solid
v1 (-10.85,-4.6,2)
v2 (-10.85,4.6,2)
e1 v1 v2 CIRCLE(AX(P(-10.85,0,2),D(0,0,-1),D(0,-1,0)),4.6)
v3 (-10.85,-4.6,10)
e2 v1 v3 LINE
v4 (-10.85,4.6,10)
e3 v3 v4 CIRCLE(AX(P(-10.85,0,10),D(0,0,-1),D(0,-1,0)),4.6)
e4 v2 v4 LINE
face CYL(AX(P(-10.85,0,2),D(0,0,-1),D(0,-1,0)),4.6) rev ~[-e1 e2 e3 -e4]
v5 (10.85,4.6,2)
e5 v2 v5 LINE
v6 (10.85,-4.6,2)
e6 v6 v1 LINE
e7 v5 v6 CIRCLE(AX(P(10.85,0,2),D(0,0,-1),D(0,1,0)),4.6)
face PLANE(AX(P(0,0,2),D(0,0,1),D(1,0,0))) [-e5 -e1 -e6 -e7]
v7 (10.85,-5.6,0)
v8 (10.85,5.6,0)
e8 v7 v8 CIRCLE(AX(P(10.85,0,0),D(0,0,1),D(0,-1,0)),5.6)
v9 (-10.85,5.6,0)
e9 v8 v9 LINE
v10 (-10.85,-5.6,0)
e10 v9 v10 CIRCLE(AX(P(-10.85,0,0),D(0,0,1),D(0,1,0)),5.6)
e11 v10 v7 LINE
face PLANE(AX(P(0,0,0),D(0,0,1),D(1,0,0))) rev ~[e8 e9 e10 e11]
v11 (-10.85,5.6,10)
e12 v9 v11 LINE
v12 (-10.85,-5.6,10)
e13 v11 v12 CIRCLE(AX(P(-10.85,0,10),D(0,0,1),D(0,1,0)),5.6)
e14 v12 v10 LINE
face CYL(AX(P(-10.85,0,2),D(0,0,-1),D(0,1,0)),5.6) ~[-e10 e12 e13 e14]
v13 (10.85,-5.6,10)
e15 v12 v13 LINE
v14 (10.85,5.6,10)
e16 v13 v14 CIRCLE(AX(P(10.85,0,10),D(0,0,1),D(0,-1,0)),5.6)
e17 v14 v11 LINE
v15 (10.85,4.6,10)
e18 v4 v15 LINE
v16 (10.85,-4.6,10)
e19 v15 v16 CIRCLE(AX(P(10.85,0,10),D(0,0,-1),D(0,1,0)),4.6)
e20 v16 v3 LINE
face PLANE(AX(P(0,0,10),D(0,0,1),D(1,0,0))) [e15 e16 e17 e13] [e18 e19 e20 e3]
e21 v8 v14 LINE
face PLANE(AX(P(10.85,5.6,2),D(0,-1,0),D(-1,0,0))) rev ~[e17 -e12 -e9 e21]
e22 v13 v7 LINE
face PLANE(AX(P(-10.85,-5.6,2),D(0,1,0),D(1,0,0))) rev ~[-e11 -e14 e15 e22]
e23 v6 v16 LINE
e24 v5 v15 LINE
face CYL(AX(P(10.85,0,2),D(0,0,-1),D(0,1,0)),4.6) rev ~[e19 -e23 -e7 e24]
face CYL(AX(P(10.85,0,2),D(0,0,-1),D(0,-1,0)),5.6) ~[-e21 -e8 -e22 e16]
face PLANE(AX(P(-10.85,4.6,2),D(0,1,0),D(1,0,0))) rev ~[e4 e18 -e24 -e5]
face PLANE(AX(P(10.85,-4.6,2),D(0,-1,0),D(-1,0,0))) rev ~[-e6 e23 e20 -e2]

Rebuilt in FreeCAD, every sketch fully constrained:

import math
import FreeCAD as App
import Part
import Sketcher
from FreeCAD import Vector
Q = App.Units.Quantity

doc = App.newDocument("Part")
body = doc.addObject("PartDesign::Body", "Body")

# Sketch on XY plane
sketch1 = body.newObject("Sketcher::SketchObject", "Sketch")
sketch1.AttachmentSupport = (doc.getObject("XY_Plane"), [""])
sketch1.MapMode = "FlatFace"
sketch1.addGeometry([
    Part.LineSegment(Vector(10.85, 5.6, 0), Vector(-10.85, 5.6, 0)),
    Part.ArcOfCircle(Part.Circle(Vector(-10.85, 0, 0), Vector(0, 0, 1), 5.6), math.radians(90), math.radians(270)),
    Part.LineSegment(Vector(-10.85, -5.6, 0), Vector(10.85, -5.6, 0)),
    Part.ArcOfCircle(Part.Circle(Vector(10.85, 0, 0), Vector(0, 0, 1), 5.6), math.radians(-90), math.radians(90)),
], False)
sketch1.addConstraint([
    Sketcher.Constraint("Tangent", 0, 2, 1, 1),
    Sketcher.Constraint("Tangent", 1, 2, 2, 1),
    Sketcher.Constraint("Tangent", 2, 2, 3, 1),
    Sketcher.Constraint("Tangent", 3, 2, 0, 1),
    Sketcher.Constraint("Horizontal", 0),
    Sketcher.Constraint("Horizontal", 2),
    Sketcher.Constraint("Symmetric", 1, 3, 3, 3, -1, 1),
    Sketcher.Constraint("Radius", 1, Q("5.6 mm")),
    Sketcher.Constraint("DistanceX", 0, 2, 0, 1, Q("21.7 mm")),
])
pad1 = body.newObject("PartDesign::Pad", "Pad")
pad1.Profile = sketch1
pad1.Length = 2

# Sketch on XY plane
sketch2 = body.newObject("Sketcher::SketchObject", "Sketch001")
sketch2.AttachmentSupport = (doc.getObject("XY_Plane"), [""])
sketch2.MapMode = "FlatFace"
sketch2.AttachmentOffset = App.Placement(Vector(0, 0, 2), App.Rotation())
sketch2.addGeometry([
    Part.ArcOfCircle(Part.Circle(Vector(10.85, 0, 0), Vector(0, 0, 1), 5.6), math.radians(-90), math.radians(90)),  # 0
    Part.LineSegment(Vector(10.85, 5.6, 0), Vector(-10.85, 5.6, 0)),  # 1
    Part.ArcOfCircle(Part.Circle(Vector(-10.85, 0, 0), Vector(0, 0, 1), 5.6), math.radians(90), math.radians(270)),  # 2
    Part.LineSegment(Vector(-10.85, -5.6, 0), Vector(10.85, -5.6, 0)),  # 3
    Part.LineSegment(Vector(10.85, -4.6, 0), Vector(-10.85, -4.6, 0)),  # 4
    Part.ArcOfCircle(Part.Circle(Vector(-10.85, 0, 0), Vector(0, 0, 1), 4.6), math.radians(90), math.radians(270)),  # 5
    Part.LineSegment(Vector(-10.85, 4.6, 0), Vector(10.85, 4.6, 0)),  # 6
    Part.ArcOfCircle(Part.Circle(Vector(10.85, 0, 0), Vector(0, 0, 1), 4.6), math.radians(-90), math.radians(90)),  # 7
], False)
sketch2.addConstraint([
    Sketcher.Constraint("Tangent", 0, 2, 1, 1),
    Sketcher.Constraint("Tangent", 1, 2, 2, 1),
    Sketcher.Constraint("Tangent", 2, 2, 3, 1),
    Sketcher.Constraint("Tangent", 3, 2, 0, 1),
    Sketcher.Constraint("Tangent", 4, 2, 5, 2),
    Sketcher.Constraint("Tangent", 5, 1, 6, 1),
    Sketcher.Constraint("Tangent", 6, 2, 7, 2),
    Sketcher.Constraint("Tangent", 7, 1, 4, 1),
    Sketcher.Constraint("Horizontal", 1),
    Sketcher.Constraint("Horizontal", 3),
    Sketcher.Constraint("Horizontal", 4),
    Sketcher.Constraint("Horizontal", 6),
    Sketcher.Constraint("Coincident", 5, 3, 2, 3),
    Sketcher.Constraint("Symmetric", 0, 3, 2, 3, -1, 1),
    Sketcher.Constraint("Vertical", 7, 3, 0, 2),
    Sketcher.Constraint("Radius", 0, Q("5.6 mm")),
    Sketcher.Constraint("Radius", 5, Q("4.6 mm")),
    Sketcher.Constraint("DistanceX", 1, 2, 1, 1, Q("21.7 mm")),
])
pad2 = body.newObject("PartDesign::Pad", "Pad001")
pad2.Profile = sketch2
pad2.Length = 8

doc.recompute()
